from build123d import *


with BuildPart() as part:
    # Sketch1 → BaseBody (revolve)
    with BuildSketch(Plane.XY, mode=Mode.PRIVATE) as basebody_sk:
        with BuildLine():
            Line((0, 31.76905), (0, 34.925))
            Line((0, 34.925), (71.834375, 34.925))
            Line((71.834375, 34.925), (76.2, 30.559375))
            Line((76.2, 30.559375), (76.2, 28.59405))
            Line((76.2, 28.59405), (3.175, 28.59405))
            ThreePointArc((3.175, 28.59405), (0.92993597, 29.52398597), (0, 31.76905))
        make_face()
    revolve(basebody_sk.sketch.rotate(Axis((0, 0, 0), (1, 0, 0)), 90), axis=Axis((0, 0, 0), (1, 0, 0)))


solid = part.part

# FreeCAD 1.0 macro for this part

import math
import FreeCAD as App
import Part
import Sketcher
from FreeCAD import Vector
Q = App.Units.Quantity

doc = App.newDocument("Part")
body = doc.addObject("PartDesign::Body", "Body")

# Sketch on XY plane
sketch1 = doc.addObject("Sketcher::SketchObject", "Sketch")
body.addObject(sketch1)
sketch1.AttachmentSupport = (doc.XY_Plane, [""])
sketch1.MapMode = "FlatFace"
sketch1.addGeometry([
    Part.LineSegment(Vector(0, 34.9, 0), Vector(0, 31.8, 0)),  # 0
    Part.ArcOfCircle(Part.Circle(Vector(3.2, 31.8, 0), Vector(0, 0, 1), 3.2), math.radians(-180), math.radians(-90)),  # 1
    Part.LineSegment(Vector(3.2, 28.6, 0), Vector(76.2, 28.6, 0)),  # 2
    Part.LineSegment(Vector(76.2, 28.6, 0), Vector(76.2, 30.6, 0)),  # 3
    Part.LineSegment(Vector(76.2, 30.6, 0), Vector(71.8, 34.9, 0)),  # 4
    Part.LineSegment(Vector(71.8, 34.9, 0), Vector(0, 34.9, 0)),  # 5
], False)
sketch1.addConstraint([
    Sketcher.Constraint("Tangent", 0, 2, 1, 1),
    Sketcher.Constraint("Tangent", 1, 2, 2, 1),
    Sketcher.Constraint("Coincident", 2, 2, 3, 1),
    Sketcher.Constraint("Coincident", 3, 2, 4, 1),
    Sketcher.Constraint("Coincident", 4, 2, 5, 1),
    Sketcher.Constraint("Coincident", 5, 2, 0, 1),
    Sketcher.Constraint("Vertical", 0),
    Sketcher.Constraint("Horizontal", 2),
    Sketcher.Constraint("Vertical", 3),
    Sketcher.Constraint("Horizontal", 5),
    Sketcher.Constraint("PointOnObject", 0, 2, -2),
    Sketcher.Constraint("DistanceX", -1, 1, 2, 2, Q("3 in")),
    Sketcher.Constraint("Angle", 4, Q("135 deg")),
    Sketcher.Constraint("Radius", 1, Q("0.125 in")),
    Sketcher.Constraint("DistanceX", 5, 2, 5, 1, Q("2.828125 in")),
    Sketcher.Constraint("DistanceY", -1, 1, 3, 2, Q("1.203125 in")),
    Sketcher.Constraint("DistanceY", 0, 2, 0, 1, Q("3.15595 mm")),
])
revolution = doc.addObject("PartDesign::Revolution", "Revolution")
body.addObject(revolution)
revolution.Profile = sketch1
revolution.ReferenceAxis = (sketch1, ["H_Axis"])
revolution.Angle = 360

doc.recompute()
